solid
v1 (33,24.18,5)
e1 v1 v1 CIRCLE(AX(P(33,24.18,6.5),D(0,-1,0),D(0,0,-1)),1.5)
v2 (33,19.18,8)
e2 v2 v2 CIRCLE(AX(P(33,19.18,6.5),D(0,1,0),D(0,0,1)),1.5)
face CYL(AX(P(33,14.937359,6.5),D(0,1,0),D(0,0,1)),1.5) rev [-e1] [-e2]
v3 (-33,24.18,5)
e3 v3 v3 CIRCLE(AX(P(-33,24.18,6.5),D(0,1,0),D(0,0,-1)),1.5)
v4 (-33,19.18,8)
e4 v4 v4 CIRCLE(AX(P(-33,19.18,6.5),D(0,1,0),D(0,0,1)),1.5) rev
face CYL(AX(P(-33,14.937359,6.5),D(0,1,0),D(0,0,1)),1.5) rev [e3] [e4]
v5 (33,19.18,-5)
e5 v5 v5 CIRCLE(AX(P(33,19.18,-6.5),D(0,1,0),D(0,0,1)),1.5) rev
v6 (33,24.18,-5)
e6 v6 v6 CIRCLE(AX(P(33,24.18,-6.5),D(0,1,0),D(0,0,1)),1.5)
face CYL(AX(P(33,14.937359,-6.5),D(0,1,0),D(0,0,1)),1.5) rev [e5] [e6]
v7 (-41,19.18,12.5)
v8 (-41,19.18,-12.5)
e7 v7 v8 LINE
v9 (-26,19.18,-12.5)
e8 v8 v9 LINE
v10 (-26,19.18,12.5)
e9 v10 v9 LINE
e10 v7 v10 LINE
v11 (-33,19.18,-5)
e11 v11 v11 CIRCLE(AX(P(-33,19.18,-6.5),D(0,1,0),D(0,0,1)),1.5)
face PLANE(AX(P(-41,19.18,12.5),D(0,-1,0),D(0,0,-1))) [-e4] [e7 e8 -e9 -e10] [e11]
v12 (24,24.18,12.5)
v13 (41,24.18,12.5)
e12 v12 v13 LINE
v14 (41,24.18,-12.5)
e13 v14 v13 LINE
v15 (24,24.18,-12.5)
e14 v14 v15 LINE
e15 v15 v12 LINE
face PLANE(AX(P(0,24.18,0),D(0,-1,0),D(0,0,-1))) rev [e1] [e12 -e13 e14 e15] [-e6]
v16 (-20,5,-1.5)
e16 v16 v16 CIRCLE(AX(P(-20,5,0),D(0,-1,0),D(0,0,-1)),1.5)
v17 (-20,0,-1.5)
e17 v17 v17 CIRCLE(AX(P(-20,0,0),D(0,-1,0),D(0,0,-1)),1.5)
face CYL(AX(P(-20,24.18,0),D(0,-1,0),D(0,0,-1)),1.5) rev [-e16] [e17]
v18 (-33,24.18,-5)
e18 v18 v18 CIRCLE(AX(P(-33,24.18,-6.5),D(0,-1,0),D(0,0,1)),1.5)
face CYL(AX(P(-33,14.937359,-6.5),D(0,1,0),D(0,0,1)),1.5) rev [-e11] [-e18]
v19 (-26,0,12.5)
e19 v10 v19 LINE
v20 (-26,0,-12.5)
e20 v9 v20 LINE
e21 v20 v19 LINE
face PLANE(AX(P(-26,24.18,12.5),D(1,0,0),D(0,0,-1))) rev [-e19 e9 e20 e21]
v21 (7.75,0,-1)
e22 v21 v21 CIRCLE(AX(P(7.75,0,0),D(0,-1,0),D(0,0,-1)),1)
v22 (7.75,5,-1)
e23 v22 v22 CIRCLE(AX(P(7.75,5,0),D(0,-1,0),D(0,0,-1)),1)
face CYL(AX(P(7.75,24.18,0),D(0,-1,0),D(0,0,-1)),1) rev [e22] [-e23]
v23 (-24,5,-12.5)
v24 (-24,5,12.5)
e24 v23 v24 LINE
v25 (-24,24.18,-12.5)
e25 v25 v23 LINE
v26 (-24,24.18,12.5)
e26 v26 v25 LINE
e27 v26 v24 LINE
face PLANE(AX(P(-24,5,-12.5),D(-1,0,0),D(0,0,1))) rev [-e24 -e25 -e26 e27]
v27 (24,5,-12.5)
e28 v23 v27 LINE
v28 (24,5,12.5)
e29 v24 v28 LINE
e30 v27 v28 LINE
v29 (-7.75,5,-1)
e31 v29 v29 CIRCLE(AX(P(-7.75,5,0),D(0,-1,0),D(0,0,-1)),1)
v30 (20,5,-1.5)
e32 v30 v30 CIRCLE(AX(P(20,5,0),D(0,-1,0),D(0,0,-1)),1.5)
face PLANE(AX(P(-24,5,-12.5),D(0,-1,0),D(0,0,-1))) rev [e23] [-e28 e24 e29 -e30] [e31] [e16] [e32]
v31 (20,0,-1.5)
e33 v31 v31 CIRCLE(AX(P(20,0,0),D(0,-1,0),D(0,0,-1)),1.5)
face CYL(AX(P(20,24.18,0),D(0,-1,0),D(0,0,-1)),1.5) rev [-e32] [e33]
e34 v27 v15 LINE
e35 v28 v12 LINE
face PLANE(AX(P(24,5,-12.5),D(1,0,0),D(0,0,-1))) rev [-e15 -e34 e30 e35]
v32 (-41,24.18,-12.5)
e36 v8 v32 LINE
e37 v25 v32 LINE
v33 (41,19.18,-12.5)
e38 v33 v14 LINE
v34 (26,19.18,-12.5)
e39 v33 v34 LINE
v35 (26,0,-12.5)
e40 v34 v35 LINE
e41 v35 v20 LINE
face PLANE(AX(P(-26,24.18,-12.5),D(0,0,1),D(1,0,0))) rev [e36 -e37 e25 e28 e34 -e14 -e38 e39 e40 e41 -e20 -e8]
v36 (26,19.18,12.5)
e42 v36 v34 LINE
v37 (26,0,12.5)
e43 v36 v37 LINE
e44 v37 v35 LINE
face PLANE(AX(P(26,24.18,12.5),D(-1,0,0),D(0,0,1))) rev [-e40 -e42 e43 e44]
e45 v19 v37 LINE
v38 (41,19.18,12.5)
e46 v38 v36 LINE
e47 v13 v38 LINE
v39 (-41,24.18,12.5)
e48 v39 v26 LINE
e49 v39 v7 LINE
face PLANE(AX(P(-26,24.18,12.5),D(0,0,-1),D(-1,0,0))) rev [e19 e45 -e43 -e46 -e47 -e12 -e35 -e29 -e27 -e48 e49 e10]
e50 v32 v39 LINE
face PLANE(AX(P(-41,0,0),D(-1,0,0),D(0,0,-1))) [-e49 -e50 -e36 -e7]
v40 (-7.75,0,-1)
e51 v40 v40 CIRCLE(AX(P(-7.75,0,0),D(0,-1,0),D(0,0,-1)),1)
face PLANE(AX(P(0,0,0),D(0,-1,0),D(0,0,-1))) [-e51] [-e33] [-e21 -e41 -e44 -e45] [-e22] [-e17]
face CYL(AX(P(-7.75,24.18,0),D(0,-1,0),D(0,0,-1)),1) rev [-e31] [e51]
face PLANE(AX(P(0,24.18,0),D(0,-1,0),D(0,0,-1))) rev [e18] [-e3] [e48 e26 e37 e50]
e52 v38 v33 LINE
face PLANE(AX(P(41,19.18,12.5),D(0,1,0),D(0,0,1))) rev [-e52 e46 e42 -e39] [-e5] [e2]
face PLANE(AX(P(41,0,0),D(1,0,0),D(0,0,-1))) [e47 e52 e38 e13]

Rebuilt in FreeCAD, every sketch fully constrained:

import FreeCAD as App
import Part
import Sketcher
from FreeCAD import Vector
Q = App.Units.Quantity

doc = App.newDocument("Part")
body = doc.addObject("PartDesign::Body", "Body")

# Sketch on XZ plane
sketch1 = body.newObject("Sketcher::SketchObject", "Sketch")
sketch1.AttachmentSupport = (doc.getObject("XZ_Plane"), [""])
sketch1.MapMode = "FlatFace"
sketch1.addGeometry([
    Part.LineSegment(Vector(-26, -12, 0), Vector(-26, 12, 0)),
    Part.LineSegment(Vector(-26, 12, 0), Vector(26, 12, 0)),
    Part.LineSegment(Vector(26, 12, 0), Vector(26, -12, 0)),
    Part.LineSegment(Vector(26, -12, 0), Vector(-26, -12, 0)),
], False)
sketch1.addConstraint([
    Sketcher.Constraint("Coincident", 0, 2, 1, 1),
    Sketcher.Constraint("Coincident", 1, 2, 2, 1),
    Sketcher.Constraint("Coincident", 2, 2, 3, 1),
    Sketcher.Constraint("Coincident", 3, 2, 0, 1),
    Sketcher.Constraint("Vertical", 0),
    Sketcher.Constraint("Horizontal", 1),
    Sketcher.Constraint("Vertical", 2),
    Sketcher.Constraint("Horizontal", 3),
    Sketcher.Constraint("Symmetric", 0, 2, 2, 2, -1, 1),
    Sketcher.Constraint("DistanceX", 1, 1, 1, 2, Q("52 mm")),
    Sketcher.Constraint("DistanceY", 0, 1, 0, 2, Q("25 mm")),
])
pad1 = body.newObject("PartDesign::Pad", "Pad")
pad1.Profile = sketch1
pad1.Length = 24.18
pad1.Reversed = True

# Sketch on XY plane
sketch2 = body.newObject("Sketcher::SketchObject", "Sketch001")
sketch2.AttachmentSupport = (doc.getObject("XY_Plane"), [""])
sketch2.MapMode = "FlatFace"
sketch2.AttachmentOffset = App.Placement(Vector(0, 0, 12.5), App.Rotation())
sketch2.addGeometry([
    Part.LineSegment(Vector(-24, 26, 0), Vector(-24, 5, 0)),
    Part.LineSegment(Vector(-24, 5, 0), Vector(24, 5, 0)),
    Part.LineSegment(Vector(24, 5, 0), Vector(24, 26, 0)),
    Part.LineSegment(Vector(24, 26, 0), Vector(-24, 26, 0)),
], False)
sketch2.addConstraint([
    Sketcher.Constraint("Coincident", 0, 2, 1, 1),
    Sketcher.Constraint("Coincident", 1, 2, 2, 1),
    Sketcher.Constraint("Coincident", 2, 2, 3, 1),
    Sketcher.Constraint("Coincident", 3, 2, 0, 1),
    Sketcher.Constraint("Vertical", 0),
    Sketcher.Constraint("Horizontal", 1),
    Sketcher.Constraint("Vertical", 2),
    Sketcher.Constraint("Horizontal", 3),
    Sketcher.Constraint("DistanceX", 1, 1, 1, 2, Q("48 mm")),
    Sketcher.Constraint("DistanceX", 0, 2, -1, 1, Q("24 mm")),
    Sketcher.Constraint("DistanceY", -1, 1, 0, 2, Q("5 mm")),
    Sketcher.Constraint("DistanceY", 0, 2, 0, 1, Q("21.115981 mm")),
])
pocket1 = body.newObject("PartDesign::Pocket", "Pocket")
pocket1.Profile = sketch2
pocket1.Length = 25

# Sketch on XZ plane
sketch3 = body.newObject("Sketcher::SketchObject", "Sketch002")
sketch3.AttachmentSupport = (doc.getObject("XZ_Plane"), [""])
sketch3.MapMode = "FlatFace"
sketch3.addGeometry([
    Part.Circle(Vector(-7.8, 0, 0), Vector(0, 0, 1), 1),
    Part.Circle(Vector(-20, 0, 0), Vector(0, 0, 1), 1.5),
    Part.Circle(Vector(7.8, 0, 0), Vector(0, 0, 1), 1),
    Part.Circle(Vector(20, 0, 0), Vector(0, 0, 1), 1.5),
], False)
sketch3.addConstraint([
    Sketcher.Constraint("Equal", 0, 2),
    Sketcher.Constraint("Equal", 1, 3),
    Sketcher.Constraint("Symmetric", 0, 3, 2, 3, -1, 1),
    Sketcher.Constraint("Symmetric", 1, 3, 3, 3, -1, 1),
    Sketcher.Constraint("PointOnObject", 0, 3, -1),
    Sketcher.Constraint("PointOnObject", 1, 3, -1),
    Sketcher.Constraint("Diameter", 0, Q("2 mm")),
    Sketcher.Constraint("Diameter", 1, Q("3 mm")),
    Sketcher.Constraint("DistanceX", 1, 3, -1, 1, Q("20 mm")),
    Sketcher.Constraint("DistanceX", 0, 3, 2, 3, Q("15.5 mm")),
])
pocket2 = body.newObject("PartDesign::Pocket", "Pocket001")
pocket2.Profile = sketch3
pocket2.Length = 24.18

# Sketch on YZ plane
sketch4 = body.newObject("Sketcher::SketchObject", "Sketch003")
sketch4.AttachmentSupport = (doc.getObject("YZ_Plane"), [""])
sketch4.MapMode = "FlatFace"
sketch4.AttachmentOffset = App.Placement(Vector(0, 0, 26), App.Rotation())
sketch4.addGeometry([
    Part.LineSegment(Vector(24, 12, 0), Vector(19, 12, 0)),
    Part.LineSegment(Vector(19, 12, 0), Vector(19, -12, 0)),
    Part.LineSegment(Vector(19, -12, 0), Vector(24, -12, 0)),
    Part.LineSegment(Vector(24, -12, 0), Vector(24, 12, 0)),
], False)
sketch4.addConstraint([
    Sketcher.Constraint("Coincident", 0, 2, 1, 1),
    Sketcher.Constraint("Coincident", 1, 2, 2, 1),
    Sketcher.Constraint("Coincident", 2, 2, 3, 1),
    Sketcher.Constraint("Coincident", 3, 2, 0, 1),
    Sketcher.Constraint("Horizontal", 0),
    Sketcher.Constraint("Vertical", 1),
    Sketcher.Constraint("Horizontal", 2),
    Sketcher.Constraint("Vertical", 3),
    Sketcher.Constraint("DistanceX", 0, 2, 0, 1, Q("5 mm")),
    Sketcher.Constraint("DistanceY", 1, 2, 1, 1, Q("25 mm")),
    Sketcher.Constraint("DistanceY", -1, 1, 0, 2, Q("12.5 mm")),
    Sketcher.Constraint("DistanceX", -1, 1, 0, 2, Q("19.18 mm")),
])
pad2 = body.newObject("PartDesign::Pad", "Pad001")
pad2.Profile = sketch4
pad2.Length = 15

# Sketch on XZ plane
sketch5 = body.newObject("Sketcher::SketchObject", "Sketch004")
sketch5.AttachmentSupport = (doc.getObject("XZ_Plane"), [""])
sketch5.MapMode = "FlatFace"
sketch5.AttachmentOffset = App.Placement(Vector(0, 0, -24.18), App.Rotation())
sketch5.addGeometry(Part.Circle(Vector(33, -6.5, 0), Vector(0, 0, 1), 1.5), False)
sketch5.addConstraint([
    Sketcher.Constraint("Diameter", 0, Q("3 mm")),
    Sketcher.Constraint("DistanceX", -1, 1, 0, 3, Q("33 mm")),
    Sketcher.Constraint("DistanceY", 0, 3, -1, 1, Q("6.5 mm")),
])
pocket3 = body.newObject("PartDesign::Pocket", "Pocket002")
pocket3.Profile = sketch5
pocket3.Length = 5
pocket3.Reversed = True
doc.recompute()

mirrored = body.newObject("PartDesign::Mirrored", "Mirrored")
mirrored.Originals = [pocket3]
mirrored.MirrorPlane = (doc.getObject("XY_Plane"), [""])
body.Tip = mirrored
doc.recompute()

mirrored2 = body.newObject("PartDesign::Mirrored", "Mirrored001")
mirrored2.Originals = [pad2, pocket3]
mirrored2.MirrorPlane = (doc.getObject("YZ_Plane"), [""])
body.Tip = mirrored2

# Sketch on XZ plane
sketch6 = body.newObject("Sketcher::SketchObject", "Sketch005")
sketch6.AttachmentSupport = (doc.getObject("XZ_Plane"), [""])
sketch6.MapMode = "FlatFace"
sketch6.AttachmentOffset = App.Placement(Vector(0, 0, -24.18), App.Rotation())
sketch6.addGeometry(Part.Circle(Vector(-33, 6.5, 0), Vector(0, 0, 1), 1.5), False)
sketch6.addConstraint([
    Sketcher.Constraint("Diameter", 0, Q("3 mm")),
    Sketcher.Constraint("DistanceX", 0, 3, -1, 1, Q("33 mm")),
    Sketcher.Constraint("DistanceY", -1, 1, 0, 3, Q("6.5 mm")),
])
pocket4 = body.newObject("PartDesign::Pocket", "Pocket003")
pocket4.Profile = sketch6
pocket4.Length = 5
pocket4.Reversed = True

doc.recompute()
